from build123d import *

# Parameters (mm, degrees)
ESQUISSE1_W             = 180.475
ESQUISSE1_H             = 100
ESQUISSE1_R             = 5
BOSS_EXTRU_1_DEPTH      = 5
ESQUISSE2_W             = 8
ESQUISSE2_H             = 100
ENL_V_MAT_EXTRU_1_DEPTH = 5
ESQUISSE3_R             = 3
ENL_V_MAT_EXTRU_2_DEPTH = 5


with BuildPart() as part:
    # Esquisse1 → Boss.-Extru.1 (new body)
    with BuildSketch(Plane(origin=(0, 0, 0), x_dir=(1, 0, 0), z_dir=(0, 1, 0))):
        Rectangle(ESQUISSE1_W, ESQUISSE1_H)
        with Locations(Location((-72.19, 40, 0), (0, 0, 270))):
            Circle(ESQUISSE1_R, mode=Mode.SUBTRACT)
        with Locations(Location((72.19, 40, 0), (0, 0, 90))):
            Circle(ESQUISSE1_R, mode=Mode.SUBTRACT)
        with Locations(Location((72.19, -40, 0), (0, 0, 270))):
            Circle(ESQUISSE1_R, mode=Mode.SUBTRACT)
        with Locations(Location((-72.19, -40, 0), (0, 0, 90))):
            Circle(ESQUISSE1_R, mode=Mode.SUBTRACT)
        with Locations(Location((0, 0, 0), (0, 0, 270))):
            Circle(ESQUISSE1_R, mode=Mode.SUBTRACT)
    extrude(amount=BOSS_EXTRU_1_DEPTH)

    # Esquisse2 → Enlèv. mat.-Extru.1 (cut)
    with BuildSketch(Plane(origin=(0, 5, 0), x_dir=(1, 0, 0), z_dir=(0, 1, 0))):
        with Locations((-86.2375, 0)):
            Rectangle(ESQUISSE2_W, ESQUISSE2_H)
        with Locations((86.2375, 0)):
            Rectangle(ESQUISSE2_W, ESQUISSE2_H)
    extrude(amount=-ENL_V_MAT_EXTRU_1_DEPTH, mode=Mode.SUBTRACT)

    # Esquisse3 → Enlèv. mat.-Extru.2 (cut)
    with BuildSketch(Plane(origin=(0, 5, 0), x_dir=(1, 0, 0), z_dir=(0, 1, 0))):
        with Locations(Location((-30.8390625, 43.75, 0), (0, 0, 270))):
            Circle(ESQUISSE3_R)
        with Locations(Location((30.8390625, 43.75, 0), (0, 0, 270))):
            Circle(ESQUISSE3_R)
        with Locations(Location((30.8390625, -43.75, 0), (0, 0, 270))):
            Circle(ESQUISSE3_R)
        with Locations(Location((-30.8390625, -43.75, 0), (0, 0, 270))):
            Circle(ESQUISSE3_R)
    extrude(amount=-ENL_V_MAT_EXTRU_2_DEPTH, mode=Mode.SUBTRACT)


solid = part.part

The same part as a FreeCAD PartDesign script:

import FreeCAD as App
import Part
import Sketcher
from FreeCAD import Vector
Q = App.Units.Quantity


def add_polygon(sketch, points):
    """Adds a closed chain of lines whose ends are joined by coincident constraints."""
    first, n = sketch.GeometryCount, len(points)
    for a, b in zip(points, points[1:] + points[:1]):
        sketch.addGeometry(Part.LineSegment(App.Vector(*a, 0), App.Vector(*b, 0)), False)
    for i in range(n):
        sketch.addConstraint(Sketcher.Constraint("Coincident", first + i, 2, first + (i + 1) % n, 1))

doc = App.newDocument("Part")
body = doc.addObject("PartDesign::Body", "Body")

# Sketch on XZ plane
sketch1 = doc.addObject("Sketcher::SketchObject", "Sketch")
body.addObject(sketch1)
sketch1.AttachmentSupport = (doc.XZ_Plane, [""])
sketch1.MapMode = "FlatFace"
add_polygon(sketch1, [(-90, -50), (-90, 50), (90, 50), (90, -50)])  # lines 0-3
sketch1.addGeometry(Part.Circle(Vector(-72, 40, 0), Vector(0, 0, 1), 5), False)  # 4
sketch1.addGeometry(Part.Circle(Vector(72, 40, 0), Vector(0, 0, 1), 5), False)  # 5
sketch1.addGeometry(Part.Circle(Vector(-72, -40, 0), Vector(0, 0, 1), 5), False)  # 6
sketch1.addGeometry(Part.Circle(Vector(0, 0, 0), Vector(0, 0, 1), 5), False)  # 7
sketch1.addGeometry(Part.Circle(Vector(72, -40, 0), Vector(0, 0, 1), 5), False)  # 8
sketch1.addConstraint([
    Sketcher.Constraint("Vertical", 0),
    Sketcher.Constraint("Horizontal", 1),
    Sketcher.Constraint("Vertical", 2),
    Sketcher.Constraint("Horizontal", 3),
    Sketcher.Constraint("Coincident", 7, 3, -1, 1),
    Sketcher.Constraint("Equal", 4, 5),
    Sketcher.Constraint("Equal", 5, 6),
    Sketcher.Constraint("Equal", 6, 7),
    Sketcher.Constraint("Equal", 7, 8),
    Sketcher.Constraint("Symmetric", 5, 3, 6, 3, -1, 1),
    Sketcher.Constraint("Symmetric", 4, 3, 8, 3, -1, 1),
    Sketcher.Constraint("Symmetric", 0, 2, 2, 2, -1, 1),
    Sketcher.Constraint("Symmetric", 4, 3, 5, 3, -2),
    Sketcher.Constraint("Diameter", 4, Q("10 mm")),
    Sketcher.Constraint("DistanceY", 0, 1, 0, 2, Q("100 mm")),
    Sketcher.Constraint("DistanceY", -1, 1, 4, 3, Q("40 mm")),
    Sketcher.Constraint("DistanceX", 1, 1, 1, 2, Q("180.475 mm")),
    Sketcher.Constraint("DistanceX", 4, 3, -1, 1, Q("72.19 mm")),
])
pad1 = doc.addObject("PartDesign::Pad", "Pad")
body.addObject(pad1)
pad1.Profile = sketch1
pad1.Length = 5
pad1.Reversed = True

# Sketch on XZ plane
sketch2 = doc.addObject("Sketcher::SketchObject", "Sketch001")
body.addObject(sketch2)
sketch2.AttachmentSupport = (doc.XZ_Plane, [""])
sketch2.MapMode = "FlatFace"
sketch2.AttachmentOffset = App.Placement(Vector(0, 0, -5), App.Rotation())
add_polygon(sketch2, [(-90, -50), (-90, 50), (-82, 50), (-82, -50)])  # lines 0-3
add_polygon(sketch2, [(82, -50), (82, 50), (90, 50), (90, -50)])  # lines 4-7
sketch2.addConstraint([
    Sketcher.Constraint("Vertical", 0),
    Sketcher.Constraint("Horizontal", 1),
    Sketcher.Constraint("Vertical", 2),
    Sketcher.Constraint("Horizontal", 3),
    Sketcher.Constraint("Vertical", 4),
    Sketcher.Constraint("Horizontal", 5),
    Sketcher.Constraint("Vertical", 6),
    Sketcher.Constraint("Horizontal", 7),
    Sketcher.Constraint("Symmetric", 2, 2, 4, 2, -1, 1),
    Sketcher.Constraint("Symmetric", 0, 2, 6, 2, -1, 1),
    Sketcher.Constraint("Horizontal", 1, 2, 4, 2),
    Sketcher.Constraint("DistanceX", 1, 1, 1, 2, Q("8 mm")),
    Sketcher.Constraint("DistanceY", 0, 1, 0, 2, Q("100 mm")),
    Sketcher.Constraint("DistanceX", 1, 2, 4, 2, Q("164.475 mm")),
])
pocket1 = doc.addObject("PartDesign::Pocket", "Pocket")
body.addObject(pocket1)
pocket1.Profile = sketch2
pocket1.Length = 5
pocket1.Reversed = True

# Sketch on XZ plane
sketch3 = doc.addObject("Sketcher::SketchObject", "Sketch002")
body.addObject(sketch3)
sketch3.AttachmentSupport = (doc.XZ_Plane, [""])
sketch3.MapMode = "FlatFace"
sketch3.AttachmentOffset = App.Placement(Vector(0, 0, -5), App.Rotation())
sketch3.addGeometry([
    Part.Circle(Vector(-30.8, -43.8, 0), Vector(0, 0, 1), 3),
    Part.Circle(Vector(30.8, -43.8, 0), Vector(0, 0, 1), 3),
    Part.Circle(Vector(30.8, 43.8, 0), Vector(0, 0, 1), 3),
    Part.Circle(Vector(-30.8, 43.8, 0), Vector(0, 0, 1), 3),
], False)
sketch3.addConstraint([
    Sketcher.Constraint("Equal", 0, 1),
    Sketcher.Constraint("Equal", 1, 2),
    Sketcher.Constraint("Equal", 2, 3),
    Sketcher.Constraint("Symmetric", 0, 3, 2, 3, -1, 1),
    Sketcher.Constraint("Symmetric", 1, 3, 3, 3, -1, 1),
    Sketcher.Constraint("Symmetric", 0, 3, 1, 3, -2),
    Sketcher.Constraint("Diameter", 0, Q("6 mm")),
    Sketcher.Constraint("DistanceY", 1, 3, 2, 3, Q("87.5 mm")),
    Sketcher.Constraint("DistanceX", 0, 3, -1, 1, Q("30.839063 mm")),
])
pocket2 = doc.addObject("PartDesign::Pocket", "Pocket001")
body.addObject(pocket2)
pocket2.Profile = sketch3
pocket2.Length = 5
pocket2.Reversed = True

doc.recompute()
